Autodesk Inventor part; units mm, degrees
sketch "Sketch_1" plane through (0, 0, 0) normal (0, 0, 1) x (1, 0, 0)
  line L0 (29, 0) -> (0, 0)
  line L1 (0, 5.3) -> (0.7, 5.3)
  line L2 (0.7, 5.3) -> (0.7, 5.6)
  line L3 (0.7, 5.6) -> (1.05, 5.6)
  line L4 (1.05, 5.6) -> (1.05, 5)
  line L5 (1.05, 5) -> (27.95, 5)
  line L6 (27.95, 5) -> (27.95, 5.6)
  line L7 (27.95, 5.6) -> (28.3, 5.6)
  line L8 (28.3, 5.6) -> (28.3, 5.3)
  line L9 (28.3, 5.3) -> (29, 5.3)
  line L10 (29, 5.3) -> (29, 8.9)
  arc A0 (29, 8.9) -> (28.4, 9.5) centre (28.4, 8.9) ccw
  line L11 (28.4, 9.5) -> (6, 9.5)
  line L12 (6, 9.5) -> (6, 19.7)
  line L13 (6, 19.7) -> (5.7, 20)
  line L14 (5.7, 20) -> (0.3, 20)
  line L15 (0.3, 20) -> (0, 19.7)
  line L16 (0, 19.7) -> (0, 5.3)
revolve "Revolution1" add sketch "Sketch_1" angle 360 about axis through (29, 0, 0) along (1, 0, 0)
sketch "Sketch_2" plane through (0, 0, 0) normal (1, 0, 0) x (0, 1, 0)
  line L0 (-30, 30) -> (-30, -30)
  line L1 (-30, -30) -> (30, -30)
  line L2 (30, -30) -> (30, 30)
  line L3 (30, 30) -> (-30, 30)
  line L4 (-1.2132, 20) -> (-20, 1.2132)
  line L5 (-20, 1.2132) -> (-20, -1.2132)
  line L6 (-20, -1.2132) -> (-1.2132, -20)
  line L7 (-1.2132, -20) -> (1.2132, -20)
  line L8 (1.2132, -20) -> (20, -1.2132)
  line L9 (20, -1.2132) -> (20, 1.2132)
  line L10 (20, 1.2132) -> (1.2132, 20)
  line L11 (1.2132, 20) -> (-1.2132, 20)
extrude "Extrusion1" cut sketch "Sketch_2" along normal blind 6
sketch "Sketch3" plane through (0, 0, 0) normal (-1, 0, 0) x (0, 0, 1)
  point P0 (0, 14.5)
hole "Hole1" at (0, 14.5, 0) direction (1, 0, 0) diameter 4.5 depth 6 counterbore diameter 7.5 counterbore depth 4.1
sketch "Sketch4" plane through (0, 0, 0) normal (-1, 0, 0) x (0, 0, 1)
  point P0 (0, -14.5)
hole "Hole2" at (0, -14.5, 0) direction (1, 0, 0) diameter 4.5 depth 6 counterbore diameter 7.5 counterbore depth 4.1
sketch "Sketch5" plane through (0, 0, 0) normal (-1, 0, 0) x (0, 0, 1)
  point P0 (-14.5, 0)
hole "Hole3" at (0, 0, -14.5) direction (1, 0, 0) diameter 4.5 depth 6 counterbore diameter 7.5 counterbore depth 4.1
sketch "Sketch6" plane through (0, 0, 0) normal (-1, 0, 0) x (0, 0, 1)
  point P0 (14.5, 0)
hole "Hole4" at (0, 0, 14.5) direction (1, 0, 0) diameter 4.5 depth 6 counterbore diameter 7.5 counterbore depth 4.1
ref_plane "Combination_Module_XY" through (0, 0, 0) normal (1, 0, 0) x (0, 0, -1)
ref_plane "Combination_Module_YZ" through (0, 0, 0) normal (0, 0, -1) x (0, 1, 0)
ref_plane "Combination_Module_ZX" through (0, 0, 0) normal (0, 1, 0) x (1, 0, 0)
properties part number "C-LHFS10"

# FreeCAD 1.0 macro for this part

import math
import FreeCAD as App
import Part
import Sketcher
from FreeCAD import Vector


def add_polygon(sketch, points):
    """Adds a closed chain of lines whose ends are joined by coincident constraints."""
    first, n = sketch.GeometryCount, len(points)
    for a, b in zip(points, points[1:] + points[:1]):
        sketch.addGeometry(Part.LineSegment(App.Vector(*a, 0), App.Vector(*b, 0)), False)
    for i in range(n):
        sketch.addConstraint(Sketcher.Constraint("Coincident", first + i, 2, first + (i + 1) % n, 1))

doc = App.newDocument("Part")
body = doc.addObject("PartDesign::Body", "Body")

# Sketch on XY plane
sketch1 = body.newObject("Sketcher::SketchObject", "Sketch")
sketch1.AttachmentSupport = (doc.getObject("XY_Plane"), [""])
sketch1.MapMode = "FlatFace"
sketch1.addGeometry([
    Part.LineSegment(Vector(0, 19.7, 0), Vector(0, 5.3, 0)),  # 0
    Part.LineSegment(Vector(0, 5.3, 0), Vector(0.7, 5.3, 0)),  # 1
    Part.LineSegment(Vector(0.7, 5.3, 0), Vector(0.7, 5.6, 0)),  # 2
    Part.LineSegment(Vector(0.7, 5.6, 0), Vector(1.05, 5.6, 0)),  # 3
    Part.LineSegment(Vector(1.05, 5.6, 0), Vector(1.05, 5, 0)),  # 4
    Part.LineSegment(Vector(1.05, 5, 0), Vector(27.95, 5, 0)),  # 5
    Part.LineSegment(Vector(27.95, 5, 0), Vector(27.95, 5.6, 0)),  # 6
    Part.LineSegment(Vector(27.95, 5.6, 0), Vector(28.3, 5.6, 0)),  # 7
    Part.LineSegment(Vector(28.3, 5.6, 0), Vector(28.3, 5.3, 0)),  # 8
    Part.LineSegment(Vector(28.3, 5.3, 0), Vector(29, 5.3, 0)),  # 9
    Part.LineSegment(Vector(29, 5.3, 0), Vector(29, 8.9, 0)),  # 10
    Part.ArcOfCircle(Part.Circle(Vector(28.4, 8.9, 0), Vector(0, 0, 1), 0.6), math.radians(0), math.radians(90)),  # 11
    Part.LineSegment(Vector(28.4, 9.5, 0), Vector(6, 9.5, 0)),  # 12
    Part.LineSegment(Vector(6, 9.5, 0), Vector(6, 19.7, 0)),  # 13
    Part.LineSegment(Vector(6, 19.7, 0), Vector(5.7, 20, 0)),  # 14
    Part.LineSegment(Vector(5.7, 20, 0), Vector(0.3, 20, 0)),  # 15
    Part.LineSegment(Vector(0.3, 20, 0), Vector(0, 19.7, 0)),  # 16
], False)
sketch1.addConstraint([
    Sketcher.Constraint("Coincident", 0, 2, 1, 1),
    Sketcher.Constraint("Coincident", 1, 2, 2, 1),
    Sketcher.Constraint("Coincident", 2, 2, 3, 1),
    Sketcher.Constraint("Coincident", 3, 2, 4, 1),
    Sketcher.Constraint("Coincident", 4, 2, 5, 1),
    Sketcher.Constraint("Coincident", 5, 2, 6, 1),
    Sketcher.Constraint("Coincident", 6, 2, 7, 1),
    Sketcher.Constraint("Coincident", 7, 2, 8, 1),
    Sketcher.Constraint("Coincident", 8, 2, 9, 1),
    Sketcher.Constraint("Coincident", 9, 2, 10, 1),
    Sketcher.Constraint("Tangent", 10, 2, 11, 1),
    Sketcher.Constraint("Tangent", 11, 2, 12, 1),
    Sketcher.Constraint("Coincident", 12, 2, 13, 1),
    Sketcher.Constraint("Coincident", 13, 2, 14, 1),
    Sketcher.Constraint("Coincident", 14, 2, 15, 1),
    Sketcher.Constraint("Coincident", 15, 2, 16, 1),
    Sketcher.Constraint("Coincident", 16, 2, 0, 1),
    Sketcher.Constraint("Vertical", 0),
    Sketcher.Constraint("Horizontal", 1),
    Sketcher.Constraint("Vertical", 2),
    Sketcher.Constraint("Horizontal", 3),
    Sketcher.Constraint("Vertical", 4),
    Sketcher.Constraint("Horizontal", 5),
    Sketcher.Constraint("Vertical", 6),
    Sketcher.Constraint("Horizontal", 7),
    Sketcher.Constraint("Vertical", 8),
    Sketcher.Constraint("Horizontal", 9),
    Sketcher.Constraint("Vertical", 10),
    Sketcher.Constraint("Horizontal", 12),
    Sketcher.Constraint("Vertical", 13),
    Sketcher.Constraint("Horizontal", 15),
    Sketcher.Constraint("PointOnObject", 0, 2, -2),
    Sketcher.Constraint("Perpendicular", 14, 16),
    Sketcher.Constraint("Horizontal", 3, 2, 6, 2),
    Sketcher.Constraint("Horizontal", 1, 2, 8, 2),
    Sketcher.Constraint("Horizontal", 13, 2, 16, 2),
    Sketcher.Constraint("Equal", 3, 7),
    Sketcher.Constraint("Equal", 1, 9),
    Sketcher.Constraint("Equal", 14, 16),
    Sketcher.Constraint("Radius", 11, 0.6),
    Sketcher.Constraint("DistanceX", 1, 1, 1, 2, 0.7),
    Sketcher.Constraint("DistanceX", 5, 1, 5, 2, 26.9),
    Sketcher.Constraint("DistanceX", 12, 2, 12, 1, 22.4),
    Sketcher.Constraint("DistanceX", 15, 2, 15, 1, 5.4),
    Sketcher.Constraint("DistanceY", 0, 2, 0, 1, 14.4),
    Sketcher.Constraint("DistanceY", 2, 1, 2, 2, 0.3),
    Sketcher.Constraint("DistanceY", 4, 2, 4, 1, 0.6),
    Sketcher.Constraint("DistanceY", 10, 1, 10, 2, 3.6),
    Sketcher.Constraint("DistanceY", -1, 1, 4, 2, 5.0),
    Sketcher.Constraint("DistanceX", -1, 1, 9, 2, 29.0),
])
revolution = body.newObject("PartDesign::Revolution", "Revolution")
revolution.Profile = sketch1
revolution.ReferenceAxis = (sketch1, ["H_Axis"])
revolution.Angle = 360

# Sketch on YZ plane
sketch2 = body.newObject("Sketcher::SketchObject", "Sketch001")
sketch2.AttachmentSupport = (doc.getObject("YZ_Plane"), [""])
sketch2.MapMode = "FlatFace"
add_polygon(sketch2, [(30, 30), (-30, 30), (-30, -30), (30, -30)])  # lines 0-3
add_polygon(sketch2, [(-20, 1.2132), (-1.2132, 20), (1.2132, 20), (20, 1.2132), (20, -1.2132), (1.2132, -20), (-1.2132, -20), (-20, -1.2132)])  # lines 4-11
sketch2.addConstraint([
    Sketcher.Constraint("Horizontal", 0),
    Sketcher.Constraint("Vertical", 1),
    Sketcher.Constraint("Horizontal", 2),
    Sketcher.Constraint("Vertical", 3),
    Sketcher.Constraint("Horizontal", 5),
    Sketcher.Constraint("Vertical", 7),
    Sketcher.Constraint("Horizontal", 9),
    Sketcher.Constraint("Vertical", 11),
    Sketcher.Constraint("Symmetric", 0, 2, 2, 2, -1, 1),
    Sketcher.Constraint("Symmetric", 4, 2, 8, 2, -1, 1),
    Sketcher.Constraint("Symmetric", 6, 2, 10, 2, -1, 1),
    Sketcher.Constraint("Perpendicular", 4, 6),
    Sketcher.Constraint("Perpendicular", 6, 8),
    Sketcher.Constraint("Perpendicular", 8, 10),
    Sketcher.Constraint("Horizontal", 7, 2, 10, 2),
    Sketcher.Constraint("Vertical", 5, 2, 8, 2),
    Sketcher.Constraint("Equal", 2, 1),
    Sketcher.Constraint("Equal", 9, 7),
    Sketcher.Constraint("DistanceX", 0, 2, 0, 1, 60.0),
    Sketcher.Constraint("DistanceY", -1, 1, 4, 2, 20.0),
    Sketcher.Constraint("DistanceX", 5, 1, 5, 2, 2.4264),
])
pocket1 = body.newObject("PartDesign::Pocket", "Pocket")
pocket1.Profile = sketch2
pocket1.Length = 6
pocket1.Reversed = True

# Sketch on YZ plane
sketch3 = body.newObject("Sketcher::SketchObject", "Sketch002")
sketch3.AttachmentSupport = (doc.getObject("YZ_Plane"), [""])
sketch3.MapMode = "FlatFace"
sketch3.addGeometry(Part.Circle(Vector(14.5, 0, 0), Vector(0, 0, 1), 2.25), False)
sketch3.addConstraint([
    Sketcher.Constraint("PointOnObject", 0, 3, -1),
    Sketcher.Constraint("Diameter", 0, 4.5),
    Sketcher.Constraint("DistanceX", -1, 1, 0, 3, 14.5),
])
doc.recompute()
hole = body.newObject("PartDesign::Hole", "Hole")
hole.Profile = sketch3
hole.ThreadType = "None"
hole.Diameter = 4.5
hole.DepthType = "Dimension"
hole.Depth = 6
hole.DrillPoint = "Flat"
hole.HoleCutType = "Counterbore"
hole.HoleCutDiameter = 7.5
hole.HoleCutDepth = 4.1
hole.Reversed = True

# Sketch on YZ plane
sketch4 = body.newObject("Sketcher::SketchObject", "Sketch003")
sketch4.AttachmentSupport = (doc.getObject("YZ_Plane"), [""])
sketch4.MapMode = "FlatFace"
sketch4.addGeometry(Part.Circle(Vector(-14.5, 0, 0), Vector(0, 0, 1), 2.25), False)
sketch4.addConstraint([
    Sketcher.Constraint("PointOnObject", 0, 3, -1),
    Sketcher.Constraint("Diameter", 0, 4.5),
    Sketcher.Constraint("DistanceX", 0, 3, -1, 1, 14.5),
])
doc.recompute()
hole2 = body.newObject("PartDesign::Hole", "Hole001")
hole2.Profile = sketch4
hole2.ThreadType = "None"
hole2.Diameter = 4.5
hole2.DepthType = "Dimension"
hole2.Depth = 6
hole2.DrillPoint = "Flat"
hole2.HoleCutType = "Counterbore"
hole2.HoleCutDiameter = 7.5
hole2.HoleCutDepth = 4.1
hole2.Reversed = True

# Sketch on YZ plane
sketch5 = body.newObject("Sketcher::SketchObject", "Sketch004")
sketch5.AttachmentSupport = (doc.getObject("YZ_Plane"), [""])
sketch5.MapMode = "FlatFace"
sketch5.addGeometry(Part.Circle(Vector(0, -14.5, 0), Vector(0, 0, 1), 2.25), False)
sketch5.addConstraint([
    Sketcher.Constraint("PointOnObject", 0, 3, -2),
    Sketcher.Constraint("Diameter", 0, 4.5),
    Sketcher.Constraint("DistanceY", 0, 3, -1, 1, 14.5),
])
doc.recompute()
hole3 = body.newObject("PartDesign::Hole", "Hole002")
hole3.Profile = sketch5
hole3.ThreadType = "None"
hole3.Diameter = 4.5
hole3.DepthType = "Dimension"
hole3.Depth = 6
hole3.DrillPoint = "Flat"
hole3.HoleCutType = "Counterbore"
hole3.HoleCutDiameter = 7.5
hole3.HoleCutDepth = 4.1
hole3.Reversed = True

# Sketch on YZ plane
sketch6 = body.newObject("Sketcher::SketchObject", "Sketch005")
sketch6.AttachmentSupport = (doc.getObject("YZ_Plane"), [""])
sketch6.MapMode = "FlatFace"
sketch6.addGeometry(Part.Circle(Vector(0, 14.5, 0), Vector(0, 0, 1), 2.25), False)
sketch6.addConstraint([
    Sketcher.Constraint("PointOnObject", 0, 3, -2),
    Sketcher.Constraint("Diameter", 0, 4.5),
    Sketcher.Constraint("DistanceY", -1, 1, 0, 3, 14.5),
])
doc.recompute()
hole4 = body.newObject("PartDesign::Hole", "Hole003")
hole4.Profile = sketch6
hole4.ThreadType = "None"
hole4.Diameter = 4.5
hole4.DepthType = "Dimension"
hole4.Depth = 6
hole4.DrillPoint = "Flat"
hole4.HoleCutType = "Counterbore"
hole4.HoleCutDiameter = 7.5
hole4.HoleCutDepth = 4.1
hole4.Reversed = True

doc.recompute()
